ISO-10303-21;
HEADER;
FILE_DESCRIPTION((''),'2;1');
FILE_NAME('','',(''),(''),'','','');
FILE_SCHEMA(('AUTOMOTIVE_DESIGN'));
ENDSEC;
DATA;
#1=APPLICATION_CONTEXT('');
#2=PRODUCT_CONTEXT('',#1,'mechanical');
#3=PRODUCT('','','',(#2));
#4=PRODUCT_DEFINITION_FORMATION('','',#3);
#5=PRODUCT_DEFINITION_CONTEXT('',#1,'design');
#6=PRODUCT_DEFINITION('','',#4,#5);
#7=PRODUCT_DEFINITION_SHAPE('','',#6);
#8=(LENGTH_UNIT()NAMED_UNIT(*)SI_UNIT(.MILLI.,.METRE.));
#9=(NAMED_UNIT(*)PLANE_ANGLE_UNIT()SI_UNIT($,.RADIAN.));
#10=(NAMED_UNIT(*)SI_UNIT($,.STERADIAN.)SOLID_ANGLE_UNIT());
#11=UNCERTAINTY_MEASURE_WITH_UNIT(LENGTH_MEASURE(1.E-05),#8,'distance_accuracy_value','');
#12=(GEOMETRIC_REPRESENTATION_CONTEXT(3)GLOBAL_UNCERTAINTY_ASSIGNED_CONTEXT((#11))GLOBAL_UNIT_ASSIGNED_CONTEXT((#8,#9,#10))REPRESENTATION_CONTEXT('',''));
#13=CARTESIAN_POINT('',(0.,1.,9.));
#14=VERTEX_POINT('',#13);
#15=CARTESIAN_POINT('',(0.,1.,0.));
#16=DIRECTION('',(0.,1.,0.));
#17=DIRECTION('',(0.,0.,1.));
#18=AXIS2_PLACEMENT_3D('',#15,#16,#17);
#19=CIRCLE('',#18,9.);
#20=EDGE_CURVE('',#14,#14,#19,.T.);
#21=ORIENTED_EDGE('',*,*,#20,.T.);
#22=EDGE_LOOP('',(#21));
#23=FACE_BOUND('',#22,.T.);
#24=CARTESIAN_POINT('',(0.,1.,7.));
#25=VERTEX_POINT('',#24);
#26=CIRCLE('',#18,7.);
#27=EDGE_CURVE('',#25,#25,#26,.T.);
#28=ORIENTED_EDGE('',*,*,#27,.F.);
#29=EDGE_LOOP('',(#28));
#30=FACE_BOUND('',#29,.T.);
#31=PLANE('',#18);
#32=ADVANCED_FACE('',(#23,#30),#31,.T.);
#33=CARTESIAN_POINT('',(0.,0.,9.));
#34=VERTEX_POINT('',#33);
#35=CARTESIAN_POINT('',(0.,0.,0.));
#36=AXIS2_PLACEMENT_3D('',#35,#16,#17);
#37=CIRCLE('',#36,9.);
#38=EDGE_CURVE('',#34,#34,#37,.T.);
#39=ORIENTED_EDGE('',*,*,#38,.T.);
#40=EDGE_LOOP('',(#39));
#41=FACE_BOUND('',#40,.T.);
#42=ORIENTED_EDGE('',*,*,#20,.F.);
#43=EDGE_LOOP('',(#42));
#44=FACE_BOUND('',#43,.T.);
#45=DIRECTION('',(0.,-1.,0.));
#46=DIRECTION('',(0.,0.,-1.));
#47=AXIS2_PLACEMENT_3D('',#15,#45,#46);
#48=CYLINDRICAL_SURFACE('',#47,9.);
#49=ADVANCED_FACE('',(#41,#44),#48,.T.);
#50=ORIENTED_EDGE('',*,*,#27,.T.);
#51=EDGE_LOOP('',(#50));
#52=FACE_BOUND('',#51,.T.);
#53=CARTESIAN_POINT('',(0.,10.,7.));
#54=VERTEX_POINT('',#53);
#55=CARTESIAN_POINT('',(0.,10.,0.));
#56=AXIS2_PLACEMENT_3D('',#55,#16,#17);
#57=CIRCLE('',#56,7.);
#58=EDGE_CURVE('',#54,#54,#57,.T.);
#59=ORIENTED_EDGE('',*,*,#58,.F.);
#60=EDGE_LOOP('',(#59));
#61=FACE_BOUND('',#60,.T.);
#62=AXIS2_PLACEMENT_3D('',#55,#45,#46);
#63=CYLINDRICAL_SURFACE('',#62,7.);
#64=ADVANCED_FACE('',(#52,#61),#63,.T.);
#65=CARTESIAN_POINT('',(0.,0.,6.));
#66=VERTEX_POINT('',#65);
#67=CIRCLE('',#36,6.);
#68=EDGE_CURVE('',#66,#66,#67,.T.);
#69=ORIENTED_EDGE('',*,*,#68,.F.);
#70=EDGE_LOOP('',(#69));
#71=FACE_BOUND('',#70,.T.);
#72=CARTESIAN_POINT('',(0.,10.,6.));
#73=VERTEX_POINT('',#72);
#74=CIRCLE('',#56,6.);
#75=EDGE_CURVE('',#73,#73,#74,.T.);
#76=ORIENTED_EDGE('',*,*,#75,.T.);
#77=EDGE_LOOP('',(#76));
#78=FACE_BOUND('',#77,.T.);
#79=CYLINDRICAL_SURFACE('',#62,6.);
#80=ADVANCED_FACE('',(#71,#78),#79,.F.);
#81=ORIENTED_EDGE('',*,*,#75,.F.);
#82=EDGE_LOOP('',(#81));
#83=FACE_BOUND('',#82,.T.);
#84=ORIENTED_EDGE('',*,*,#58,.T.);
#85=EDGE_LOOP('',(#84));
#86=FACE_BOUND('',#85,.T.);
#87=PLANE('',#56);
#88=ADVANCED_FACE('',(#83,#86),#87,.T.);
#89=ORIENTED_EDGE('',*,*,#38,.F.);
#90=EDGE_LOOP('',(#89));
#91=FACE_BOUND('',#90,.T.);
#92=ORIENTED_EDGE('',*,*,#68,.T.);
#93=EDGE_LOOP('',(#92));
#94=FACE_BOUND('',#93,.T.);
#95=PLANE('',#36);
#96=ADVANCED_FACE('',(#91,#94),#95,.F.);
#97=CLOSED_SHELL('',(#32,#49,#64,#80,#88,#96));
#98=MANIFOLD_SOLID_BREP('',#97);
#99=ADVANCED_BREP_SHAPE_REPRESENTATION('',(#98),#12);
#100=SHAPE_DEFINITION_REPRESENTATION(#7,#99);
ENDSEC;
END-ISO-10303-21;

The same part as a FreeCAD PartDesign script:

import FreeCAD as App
import Part
import Sketcher

V = App.Vector

doc = App.newDocument("Part")
body = doc.addObject("PartDesign::Body", "Body")

# Sketch on XZ plane
sketch1 = body.newObject("Sketcher::SketchObject", "Sketch")
sketch1.AttachmentSupport = (doc.getObject("XZ_Plane"), [""])
sketch1.MapMode = "FlatFace"
sketch1.addGeometry([
    Part.Circle(V(0, 0, 0), V(0, 0, 1), 7),
    Part.Circle(V(0, 0, 0), V(0, 0, 1), 6),
], False)
sketch1.addConstraint([
    Sketcher.Constraint("Coincident", 0, 3, -1, 1),
    Sketcher.Constraint("Coincident", 1, 3, -1, 1),
    Sketcher.Constraint("Diameter", 0, 14.0),
    Sketcher.Constraint("Diameter", 1, 12.0),
])
pad1 = body.newObject("PartDesign::Pad", "Pad")
pad1.Profile = sketch1
pad1.Length = 10
pad1.Reversed = True

# Sketch on XZ plane
sketch2 = body.newObject("Sketcher::SketchObject", "Sketch001")
sketch2.AttachmentSupport = (doc.getObject("XZ_Plane"), [""])
sketch2.MapMode = "FlatFace"
sketch2.addGeometry([
    Part.Circle(V(0, 0, 0), V(0, 0, 1), 9),
    Part.Circle(V(0, 0, 0), V(0, 0, 1), 7),
], False)
sketch2.addConstraint([
    Sketcher.Constraint("Coincident", 0, 3, -1, 1),
    Sketcher.Constraint("Coincident", 1, 3, -1, 1),
    Sketcher.Constraint("Diameter", 0, 18.0),
    Sketcher.Constraint("Diameter", 1, 14.0),
])
pad2 = body.newObject("PartDesign::Pad", "Pad001")
pad2.Profile = sketch2
pad2.Length = 1
pad2.Reversed = True

doc.recompute()
